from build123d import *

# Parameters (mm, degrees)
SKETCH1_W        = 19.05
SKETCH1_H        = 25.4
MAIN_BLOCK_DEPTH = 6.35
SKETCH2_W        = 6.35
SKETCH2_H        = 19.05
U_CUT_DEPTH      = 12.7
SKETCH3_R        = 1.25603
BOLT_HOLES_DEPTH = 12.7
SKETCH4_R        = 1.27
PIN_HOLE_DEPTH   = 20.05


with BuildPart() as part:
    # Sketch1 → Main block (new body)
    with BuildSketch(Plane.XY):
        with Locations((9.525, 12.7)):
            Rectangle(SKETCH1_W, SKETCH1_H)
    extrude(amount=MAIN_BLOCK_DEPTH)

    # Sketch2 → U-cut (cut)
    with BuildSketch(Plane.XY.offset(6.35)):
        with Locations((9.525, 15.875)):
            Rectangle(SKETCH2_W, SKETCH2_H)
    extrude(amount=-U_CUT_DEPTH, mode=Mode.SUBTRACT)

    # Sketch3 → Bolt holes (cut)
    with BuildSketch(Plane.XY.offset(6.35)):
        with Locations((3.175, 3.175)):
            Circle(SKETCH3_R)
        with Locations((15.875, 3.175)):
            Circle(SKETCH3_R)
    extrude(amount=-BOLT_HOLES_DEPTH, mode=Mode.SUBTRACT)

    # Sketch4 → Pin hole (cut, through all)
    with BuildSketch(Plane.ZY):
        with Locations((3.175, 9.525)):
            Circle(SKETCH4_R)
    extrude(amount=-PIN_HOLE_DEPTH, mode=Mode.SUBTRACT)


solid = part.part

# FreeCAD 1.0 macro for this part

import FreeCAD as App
import Part
import Sketcher
from FreeCAD import Vector
Q = App.Units.Quantity

doc = App.newDocument("Part")
body = doc.addObject("PartDesign::Body", "Body")

# Sketch on XY plane
sketch1 = doc.addObject("Sketcher::SketchObject", "Sketch")
body.addObject(sketch1)
sketch1.AttachmentSupport = (doc.XY_Plane, [""])
sketch1.MapMode = "FlatFace"
sketch1.addGeometry([
    Part.LineSegment(Vector(0, 25, 0), Vector(0, 0, 0)),
    Part.LineSegment(Vector(0, 0, 0), Vector(19, 0, 0)),
    Part.LineSegment(Vector(19, 0, 0), Vector(19, 25, 0)),
    Part.LineSegment(Vector(19, 25, 0), Vector(0, 25, 0)),
], False)
sketch1.addConstraint([
    Sketcher.Constraint("Coincident", 0, 2, 1, 1),
    Sketcher.Constraint("Coincident", 1, 2, 2, 1),
    Sketcher.Constraint("Coincident", 2, 2, 3, 1),
    Sketcher.Constraint("Coincident", 3, 2, 0, 1),
    Sketcher.Constraint("Vertical", 0),
    Sketcher.Constraint("Horizontal", 1),
    Sketcher.Constraint("Vertical", 2),
    Sketcher.Constraint("Horizontal", 3),
    Sketcher.Constraint("Coincident", 0, 2, -1, 1),
    Sketcher.Constraint("DistanceY", 0, 2, 0, 1, Q("1 in")),
    Sketcher.Constraint("DistanceX", 1, 1, 1, 2, Q("0.75 in")),
])
pad1 = doc.addObject("PartDesign::Pad", "Pad")
body.addObject(pad1)
pad1.Profile = sketch1
pad1.Length = Q("0.25 in")

# Sketch on XY plane
sketch2 = doc.addObject("Sketcher::SketchObject", "Sketch001")
body.addObject(sketch2)
sketch2.AttachmentSupport = (doc.XY_Plane, [""])
sketch2.MapMode = "FlatFace"
sketch2.AttachmentOffset = App.Placement(Vector(0, 0, 0.25 * 25.4), App.Rotation())
sketch2.addGeometry([
    Part.LineSegment(Vector(6, 25, 0), Vector(6, 6, 0)),
    Part.LineSegment(Vector(6, 6, 0), Vector(13, 6, 0)),
    Part.LineSegment(Vector(13, 6, 0), Vector(13, 25, 0)),
    Part.LineSegment(Vector(13, 25, 0), Vector(6, 25, 0)),
], False)
sketch2.addConstraint([
    Sketcher.Constraint("Coincident", 0, 2, 1, 1),
    Sketcher.Constraint("Coincident", 1, 2, 2, 1),
    Sketcher.Constraint("Coincident", 2, 2, 3, 1),
    Sketcher.Constraint("Coincident", 3, 2, 0, 1),
    Sketcher.Constraint("Vertical", 0),
    Sketcher.Constraint("Horizontal", 1),
    Sketcher.Constraint("Vertical", 2),
    Sketcher.Constraint("Horizontal", 3),
    Sketcher.Constraint("DistanceY", -1, 1, 2, 2, Q("1 in")),
    Sketcher.Constraint("DistanceX", 1, 1, 1, 2, Q("0.25 in")),
    Sketcher.Constraint("DistanceY", 0, 2, 0, 1, Q("0.75 in")),
    Sketcher.Constraint("DistanceX", -1, 1, 1, 2, Q("0.5 in")),
])
pocket1 = doc.addObject("PartDesign::Pocket", "Pocket")
body.addObject(pocket1)
pocket1.Profile = sketch2
pocket1.Length = Q("0.5 in")

# Sketch on XY plane
sketch3 = doc.addObject("Sketcher::SketchObject", "Sketch002")
body.addObject(sketch3)
sketch3.AttachmentSupport = (doc.XY_Plane, [""])
sketch3.MapMode = "FlatFace"
sketch3.AttachmentOffset = App.Placement(Vector(0, 0, 0.25 * 25.4), App.Rotation())
sketch3.addGeometry([
    Part.Circle(Vector(3.2, 3.2, 0), Vector(0, 0, 1), 1.3),
    Part.Circle(Vector(15.9, 3.2, 0), Vector(0, 0, 1), 1.3),
], False)
sketch3.addConstraint([
    Sketcher.Constraint("Equal", 0, 1),
    Sketcher.Constraint("Horizontal", 0, 3, 1, 3),
    Sketcher.Constraint("Diameter", 0, Q("0.0989 in")),
    Sketcher.Constraint("DistanceX", 0, 3, 1, 3, Q("0.5 in")),
    Sketcher.Constraint("DistanceX", -1, 1, 0, 3, Q("0.125 in")),
    Sketcher.Constraint("DistanceY", -1, 1, 0, 3, Q("0.125 in")),
])
pocket2 = doc.addObject("PartDesign::Pocket", "Pocket001")
body.addObject(pocket2)
pocket2.Profile = sketch3
pocket2.Length = Q("0.5 in")

# Sketch on YZ plane
sketch4 = doc.addObject("Sketcher::SketchObject", "Sketch003")
body.addObject(sketch4)
sketch4.AttachmentSupport = (doc.YZ_Plane, [""])
sketch4.MapMode = "FlatFace"
sketch4.addGeometry(Part.Circle(Vector(9.5, 3.2, 0), Vector(0, 0, 1), 1.3), False)
sketch4.addConstraint([
    Sketcher.Constraint("Diameter", 0, Q("0.1 in")),
    Sketcher.Constraint("DistanceX", -1, 1, 0, 3, Q("0.375 in")),
    Sketcher.Constraint("DistanceY", -1, 1, 0, 3, Q("0.125 in")),
])
pocket3 = doc.addObject("PartDesign::Pocket", "Pocket002")
body.addObject(pocket3)
pocket3.Profile = sketch4
pocket3.Type = "ThroughAll"
pocket3.Reversed = True

doc.recompute()
